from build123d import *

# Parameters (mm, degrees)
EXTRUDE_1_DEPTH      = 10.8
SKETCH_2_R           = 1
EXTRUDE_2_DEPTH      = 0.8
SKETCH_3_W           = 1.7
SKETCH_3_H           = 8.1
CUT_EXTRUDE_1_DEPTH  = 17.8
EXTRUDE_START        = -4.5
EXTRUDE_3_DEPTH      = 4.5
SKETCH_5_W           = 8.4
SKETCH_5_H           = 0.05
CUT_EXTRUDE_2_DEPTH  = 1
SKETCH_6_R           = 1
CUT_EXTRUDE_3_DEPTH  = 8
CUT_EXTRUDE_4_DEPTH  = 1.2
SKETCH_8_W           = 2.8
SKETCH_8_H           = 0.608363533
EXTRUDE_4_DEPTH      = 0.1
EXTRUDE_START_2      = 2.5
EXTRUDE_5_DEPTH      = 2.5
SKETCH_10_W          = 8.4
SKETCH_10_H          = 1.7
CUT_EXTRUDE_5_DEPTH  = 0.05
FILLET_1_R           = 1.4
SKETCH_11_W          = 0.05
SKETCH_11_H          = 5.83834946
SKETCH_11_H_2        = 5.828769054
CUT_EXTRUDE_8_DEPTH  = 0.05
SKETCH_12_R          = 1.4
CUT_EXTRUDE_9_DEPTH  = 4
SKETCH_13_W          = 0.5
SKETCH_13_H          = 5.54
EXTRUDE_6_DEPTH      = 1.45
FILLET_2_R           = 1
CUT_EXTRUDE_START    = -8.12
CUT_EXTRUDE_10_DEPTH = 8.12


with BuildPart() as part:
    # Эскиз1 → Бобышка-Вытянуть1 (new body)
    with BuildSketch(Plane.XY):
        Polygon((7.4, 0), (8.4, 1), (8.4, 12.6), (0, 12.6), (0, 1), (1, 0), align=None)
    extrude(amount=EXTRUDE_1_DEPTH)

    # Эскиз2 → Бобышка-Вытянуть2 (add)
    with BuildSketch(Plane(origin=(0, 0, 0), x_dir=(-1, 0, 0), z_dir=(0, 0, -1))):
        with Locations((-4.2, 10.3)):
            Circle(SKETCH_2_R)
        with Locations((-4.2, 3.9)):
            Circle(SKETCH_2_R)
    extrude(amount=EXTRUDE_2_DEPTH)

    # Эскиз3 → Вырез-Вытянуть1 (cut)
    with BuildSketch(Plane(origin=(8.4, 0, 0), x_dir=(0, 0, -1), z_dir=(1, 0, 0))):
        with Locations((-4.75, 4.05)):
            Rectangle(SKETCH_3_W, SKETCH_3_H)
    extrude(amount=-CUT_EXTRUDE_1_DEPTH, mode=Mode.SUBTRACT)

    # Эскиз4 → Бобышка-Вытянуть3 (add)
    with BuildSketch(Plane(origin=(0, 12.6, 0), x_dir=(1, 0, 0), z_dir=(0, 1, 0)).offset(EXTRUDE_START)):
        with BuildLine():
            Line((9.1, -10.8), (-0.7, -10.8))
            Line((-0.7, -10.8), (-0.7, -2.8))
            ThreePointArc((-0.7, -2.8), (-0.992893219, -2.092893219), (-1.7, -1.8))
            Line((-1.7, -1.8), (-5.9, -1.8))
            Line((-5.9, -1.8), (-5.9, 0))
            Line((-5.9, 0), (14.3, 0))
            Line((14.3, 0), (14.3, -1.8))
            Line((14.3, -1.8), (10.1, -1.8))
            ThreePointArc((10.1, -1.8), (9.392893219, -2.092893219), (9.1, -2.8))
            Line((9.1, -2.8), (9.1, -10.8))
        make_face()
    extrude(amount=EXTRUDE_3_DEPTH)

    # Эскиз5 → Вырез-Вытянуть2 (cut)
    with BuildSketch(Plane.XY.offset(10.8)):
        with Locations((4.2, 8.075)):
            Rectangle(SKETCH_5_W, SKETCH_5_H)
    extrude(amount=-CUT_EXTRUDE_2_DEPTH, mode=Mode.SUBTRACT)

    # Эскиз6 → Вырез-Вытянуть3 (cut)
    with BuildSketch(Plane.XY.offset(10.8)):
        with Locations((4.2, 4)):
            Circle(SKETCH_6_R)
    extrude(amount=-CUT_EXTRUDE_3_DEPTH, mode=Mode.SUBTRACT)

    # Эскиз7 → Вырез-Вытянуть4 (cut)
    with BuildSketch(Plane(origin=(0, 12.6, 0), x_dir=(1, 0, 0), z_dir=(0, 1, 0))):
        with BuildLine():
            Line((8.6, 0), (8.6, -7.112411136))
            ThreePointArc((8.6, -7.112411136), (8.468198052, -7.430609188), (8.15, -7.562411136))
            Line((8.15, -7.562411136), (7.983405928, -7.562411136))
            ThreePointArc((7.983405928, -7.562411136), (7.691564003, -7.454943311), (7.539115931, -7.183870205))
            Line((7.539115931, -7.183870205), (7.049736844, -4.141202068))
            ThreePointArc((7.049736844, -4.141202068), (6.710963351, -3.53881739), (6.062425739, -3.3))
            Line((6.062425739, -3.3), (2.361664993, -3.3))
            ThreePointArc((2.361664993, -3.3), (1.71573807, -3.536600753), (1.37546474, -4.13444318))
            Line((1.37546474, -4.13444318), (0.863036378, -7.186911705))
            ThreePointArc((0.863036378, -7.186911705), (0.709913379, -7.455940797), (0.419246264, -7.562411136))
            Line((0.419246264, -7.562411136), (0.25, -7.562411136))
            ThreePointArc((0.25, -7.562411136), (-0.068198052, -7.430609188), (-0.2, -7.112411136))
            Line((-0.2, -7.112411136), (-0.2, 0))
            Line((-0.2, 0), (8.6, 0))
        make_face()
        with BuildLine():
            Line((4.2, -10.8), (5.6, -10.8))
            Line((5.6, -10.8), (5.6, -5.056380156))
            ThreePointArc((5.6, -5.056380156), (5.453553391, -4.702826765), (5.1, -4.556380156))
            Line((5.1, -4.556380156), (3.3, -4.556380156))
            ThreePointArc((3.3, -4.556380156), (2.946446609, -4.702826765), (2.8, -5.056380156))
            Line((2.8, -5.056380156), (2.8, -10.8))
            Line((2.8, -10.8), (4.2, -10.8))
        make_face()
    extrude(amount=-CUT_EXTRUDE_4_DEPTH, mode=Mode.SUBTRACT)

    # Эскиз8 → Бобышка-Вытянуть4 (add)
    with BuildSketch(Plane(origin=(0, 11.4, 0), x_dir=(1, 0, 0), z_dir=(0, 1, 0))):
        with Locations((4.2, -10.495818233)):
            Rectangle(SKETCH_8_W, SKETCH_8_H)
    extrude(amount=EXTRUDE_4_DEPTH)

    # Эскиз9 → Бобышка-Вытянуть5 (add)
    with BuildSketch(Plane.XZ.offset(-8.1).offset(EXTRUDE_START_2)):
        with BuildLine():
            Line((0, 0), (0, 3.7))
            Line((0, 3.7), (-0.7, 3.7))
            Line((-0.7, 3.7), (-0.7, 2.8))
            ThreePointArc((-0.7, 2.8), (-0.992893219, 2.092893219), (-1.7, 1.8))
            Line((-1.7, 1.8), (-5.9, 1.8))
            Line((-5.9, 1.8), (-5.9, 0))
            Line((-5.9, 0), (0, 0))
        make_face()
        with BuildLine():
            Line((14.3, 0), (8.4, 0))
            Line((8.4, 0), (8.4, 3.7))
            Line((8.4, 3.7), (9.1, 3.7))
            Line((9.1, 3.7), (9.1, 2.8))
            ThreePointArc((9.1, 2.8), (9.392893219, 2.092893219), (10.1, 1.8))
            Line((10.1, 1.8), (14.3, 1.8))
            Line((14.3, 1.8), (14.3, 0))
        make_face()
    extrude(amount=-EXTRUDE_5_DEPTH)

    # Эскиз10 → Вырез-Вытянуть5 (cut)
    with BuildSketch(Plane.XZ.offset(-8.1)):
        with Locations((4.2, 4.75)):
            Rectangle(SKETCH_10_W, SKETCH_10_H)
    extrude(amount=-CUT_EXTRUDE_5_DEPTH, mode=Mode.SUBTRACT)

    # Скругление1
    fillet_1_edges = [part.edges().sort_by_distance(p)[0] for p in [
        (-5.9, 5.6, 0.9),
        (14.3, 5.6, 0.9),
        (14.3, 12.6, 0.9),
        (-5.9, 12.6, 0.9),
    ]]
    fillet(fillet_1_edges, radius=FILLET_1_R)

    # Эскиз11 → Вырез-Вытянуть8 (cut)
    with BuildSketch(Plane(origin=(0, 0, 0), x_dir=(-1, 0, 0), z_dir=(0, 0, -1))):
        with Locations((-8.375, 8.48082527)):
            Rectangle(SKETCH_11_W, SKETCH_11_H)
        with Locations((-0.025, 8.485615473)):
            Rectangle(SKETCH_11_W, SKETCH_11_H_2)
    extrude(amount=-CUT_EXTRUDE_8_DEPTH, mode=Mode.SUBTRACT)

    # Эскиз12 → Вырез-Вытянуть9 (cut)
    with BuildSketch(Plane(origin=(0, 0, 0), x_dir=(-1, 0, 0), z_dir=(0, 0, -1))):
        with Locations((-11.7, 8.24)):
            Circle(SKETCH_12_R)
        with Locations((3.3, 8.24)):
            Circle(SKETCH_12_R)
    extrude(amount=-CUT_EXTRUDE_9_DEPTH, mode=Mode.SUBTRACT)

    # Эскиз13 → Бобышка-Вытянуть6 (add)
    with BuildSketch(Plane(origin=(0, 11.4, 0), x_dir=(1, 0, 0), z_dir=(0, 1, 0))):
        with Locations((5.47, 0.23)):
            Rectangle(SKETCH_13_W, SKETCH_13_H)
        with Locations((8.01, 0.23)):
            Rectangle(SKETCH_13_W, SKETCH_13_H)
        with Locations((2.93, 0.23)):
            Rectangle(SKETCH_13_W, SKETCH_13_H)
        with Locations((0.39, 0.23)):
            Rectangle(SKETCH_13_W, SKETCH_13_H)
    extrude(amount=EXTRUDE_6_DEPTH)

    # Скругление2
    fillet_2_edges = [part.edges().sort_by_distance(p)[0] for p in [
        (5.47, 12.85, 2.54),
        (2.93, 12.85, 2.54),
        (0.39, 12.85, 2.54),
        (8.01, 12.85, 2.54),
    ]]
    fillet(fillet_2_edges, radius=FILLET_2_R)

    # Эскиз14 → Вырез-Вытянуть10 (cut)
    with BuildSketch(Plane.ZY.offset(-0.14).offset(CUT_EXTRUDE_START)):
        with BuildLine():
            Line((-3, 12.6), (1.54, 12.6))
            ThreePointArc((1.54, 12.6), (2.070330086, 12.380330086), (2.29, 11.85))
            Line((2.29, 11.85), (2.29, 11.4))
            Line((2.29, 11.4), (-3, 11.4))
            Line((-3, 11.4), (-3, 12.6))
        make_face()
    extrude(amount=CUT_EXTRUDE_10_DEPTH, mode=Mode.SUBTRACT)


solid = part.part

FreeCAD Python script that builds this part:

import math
import FreeCAD as App
import Part
import Sketcher

V = App.Vector
Q = App.Units.Quantity


def edges_at(feature, points):
    """Names of the edges that pass closest to the given points."""
    edges = feature.Shape.Edges
    near = lambda p: min(range(len(edges)), key=lambda i: edges[i].distToShape(Part.Vertex(*p))[0])
    return sorted({f"Edge{near(p) + 1}" for p in points})

doc = App.newDocument("Part")
params = doc.addObject("Spreadsheet::Sheet", "Params")
for row, (alias, value) in enumerate([
    ("sketch1_width", "8.4 mm"),
    ("sketch1_width2", "6.4 mm"),
    ("sketch1_height", "11.6 mm"),
    ("pad1_length", "10.8 mm"),
    ("sketch2_diameter", "2 mm"),
    ("pad2_length", "0.8 mm"),
    ("sketch3_width", "8.1 mm"),
    ("sketch3_height", "1.7 mm"),
    ("pocket1_length", "17.8 mm"),
    ("sketch4_radius", "1 mm"),
    ("sketch4_height", "8 mm"),
    ("sketch4_width", "9.8 mm"),
    ("sketch4_width2", "4.2 mm"),
    ("sketch4_height2", "1.8 mm"),
    ("pad3_length", "4.5 mm"),
    ("sketch5_width", "8.4 mm"),
    ("sketch5_height", "0.05 mm"),
    ("pocket2_length", "1 mm"),
    ("sketch6_diameter", "2 mm"),
    ("pocket3_length", "8 mm"),
    ("sketch7_radius", "1 mm"),
    ("sketch7_radius2", "0.5 mm"),
    ("sketch7_radius3", "0.45 mm"),
    ("sketch7_width", "8.8 mm"),
    ("sketch7_width2", "1.8 mm"),
    ("pocket4_length", "1.2 mm"),
    ("sketch8_width", "2.8 mm"),
    ("pad4_length", "0.1 mm"),
    ("sketch9_radius", "1 mm"),
    ("sketch9_width", "0.7 mm"),
    ("sketch9_width2", "4.2 mm"),
    ("sketch9_height", "3.7 mm"),
    ("sketch9_height2", "0.9 mm"),
    ("pad5_length", "2.5 mm"),
    ("sketch10_width", "8.4 mm"),
    ("sketch10_height", "1.7 mm"),
    ("pocket5_length", "0.05 mm"),
    ("fillet_radius", "1.4 mm"),
    ("sketch11_width", "0.05 mm"),
    ("pocket6_length", "0.05 mm"),
    ("sketch12_diameter", "2.8 mm"),
    ("pocket7_length", "4 mm"),
    ("sketch13_width", "0.5 mm"),
    ("sketch13_height", "5.54 mm"),
    ("pad6_length", "1.45 mm"),
    ("fillet2_radius", "1 mm"),
    ("sketch14_radius", "0.75 mm"),
    ("sketch14_width", "1.2 mm"),
    ("sketch14_height", "4.54 mm"),
    ("pocket8_length", "8.12 mm"),
], start=1):
    params.set(f"A{row}", alias)
    params.set(f"B{row}", "=" + value)
    params.setAlias(f"B{row}", alias)

body = doc.addObject("PartDesign::Body", "Body")

# Sketch on XY plane
sketch1 = body.newObject("Sketcher::SketchObject", "Sketch")
sketch1.AttachmentSupport = (doc.getObject("XY_Plane"), [""])
sketch1.MapMode = "FlatFace"
sketch1.addGeometry([
    Part.LineSegment(V(7.4, 0, 0), V(8.4, 1, 0)),  # 0
    Part.LineSegment(V(8.4, 1, 0), V(8.4, 12.6, 0)),  # 1
    Part.LineSegment(V(8.4, 12.6, 0), V(0, 12.6, 0)),  # 2
    Part.LineSegment(V(0, 12.6, 0), V(0, 1, 0)),  # 3
    Part.LineSegment(V(0, 1, 0), V(1, 0, 0)),  # 4
    Part.LineSegment(V(1, 0, 0), V(7.4, 0, 0)),  # 5
], False)
sketch1.addConstraint([
    Sketcher.Constraint("Coincident", 0, 2, 1, 1),
    Sketcher.Constraint("Coincident", 1, 2, 2, 1),
    Sketcher.Constraint("Coincident", 2, 2, 3, 1),
    Sketcher.Constraint("Coincident", 3, 2, 4, 1),
    Sketcher.Constraint("Coincident", 4, 2, 5, 1),
    Sketcher.Constraint("Coincident", 5, 2, 0, 1),
    Sketcher.Constraint("Vertical", 1),
    Sketcher.Constraint("Horizontal", 2),
    Sketcher.Constraint("Vertical", 3),
    Sketcher.Constraint("Horizontal", 5),
    Sketcher.Constraint("PointOnObject", 2, 2, -2),
    Sketcher.Constraint("PointOnObject", 4, 2, -1),
    Sketcher.Constraint("Perpendicular", 0, 4),
    Sketcher.Constraint("Horizontal", 0, 2, 3, 2),
    Sketcher.Constraint("Equal", 0, 4),
    Sketcher.Constraint("DistanceX", 2, 2, 2, 1, Q("8.4 mm")),
    Sketcher.Constraint("DistanceX", 5, 1, 5, 2, Q("6.4 mm")),
    Sketcher.Constraint("DistanceY", 1, 1, 1, 2, Q("11.6 mm")),
])
sketch1.setExpression("Constraints[15]", "Params.sketch1_width")
sketch1.setExpression("Constraints[16]", "Params.sketch1_width2")
sketch1.setExpression("Constraints[17]", "Params.sketch1_height")
pad1 = body.newObject("PartDesign::Pad", "Pad")
pad1.Profile = sketch1
pad1.setExpression("Length", "Params.pad1_length")

# Sketch on XY plane
sketch2 = body.newObject("Sketcher::SketchObject", "Sketch001")
sketch2.AttachmentSupport = (doc.getObject("XY_Plane"), [""])
sketch2.MapMode = "FlatFace"
sketch2.addGeometry([
    Part.Circle(V(4.2, 10.3, 0), V(0, 0, 1), 1),
    Part.Circle(V(4.2, 3.9, 0), V(0, 0, 1), 1),
], False)
sketch2.addConstraint([
    Sketcher.Constraint("Equal", 0, 1),
    Sketcher.Constraint("Vertical", 0, 3, 1, 3),
    Sketcher.Constraint("Diameter", 0, Q("2 mm")),
    Sketcher.Constraint("DistanceX", -1, 1, 0, 3, Q("4.2 mm")),
    Sketcher.Constraint("DistanceY", -1, 1, 0, 3, Q("10.3 mm")),
    Sketcher.Constraint("DistanceY", -1, 1, 1, 3, Q("3.9 mm")),
])
sketch2.setExpression("Constraints[2]", "Params.sketch2_diameter")
pad2 = body.newObject("PartDesign::Pad", "Pad001")
pad2.Profile = sketch2
pad2.setExpression("Length", "Params.pad2_length")
pad2.Reversed = True

# Sketch on YZ plane
sketch3 = body.newObject("Sketcher::SketchObject", "Sketch002")
sketch3.AttachmentSupport = (doc.getObject("YZ_Plane"), [""])
sketch3.MapMode = "FlatFace"
sketch3.AttachmentOffset = App.Placement(V(0, 0, 8.4), App.Rotation())
sketch3.addGeometry([
    Part.LineSegment(V(8.1, 5.6, 0), V(0, 5.6, 0)),
    Part.LineSegment(V(0, 5.6, 0), V(0, 3.9, 0)),
    Part.LineSegment(V(0, 3.9, 0), V(8.1, 3.9, 0)),
    Part.LineSegment(V(8.1, 3.9, 0), V(8.1, 5.6, 0)),
], False)
sketch3.addConstraint([
    Sketcher.Constraint("Coincident", 0, 2, 1, 1),
    Sketcher.Constraint("Coincident", 1, 2, 2, 1),
    Sketcher.Constraint("Coincident", 2, 2, 3, 1),
    Sketcher.Constraint("Coincident", 3, 2, 0, 1),
    Sketcher.Constraint("Horizontal", 0),
    Sketcher.Constraint("Vertical", 1),
    Sketcher.Constraint("Horizontal", 2),
    Sketcher.Constraint("Vertical", 3),
    Sketcher.Constraint("PointOnObject", 0, 2, -2),
    Sketcher.Constraint("DistanceX", 0, 2, 0, 1, Q("8.1 mm")),
    Sketcher.Constraint("DistanceY", 1, 2, 1, 1, Q("1.7 mm")),
    Sketcher.Constraint("DistanceY", -1, 1, 0, 2, Q("5.6 mm")),
])
sketch3.setExpression("Constraints[9]", "Params.sketch3_width")
sketch3.setExpression("Constraints[10]", "Params.sketch3_height")
pocket1 = body.newObject("PartDesign::Pocket", "Pocket")
pocket1.Profile = sketch3
pocket1.setExpression("Length", "Params.pocket1_length")

# Sketch on XZ plane
sketch4 = body.newObject("Sketcher::SketchObject", "Sketch003")
sketch4.AttachmentSupport = (doc.getObject("XZ_Plane"), [""])
sketch4.MapMode = "FlatFace"
sketch4.AttachmentOffset = App.Placement(V(0, 0, -8.1), App.Rotation())
sketch4.addGeometry([
    Part.LineSegment(V(-0.7, 10.8, 0), V(9.1, 10.8, 0)),  # 0
    Part.LineSegment(V(9.1, 10.8, 0), V(9.1, 2.8, 0)),  # 1
    Part.ArcOfCircle(Part.Circle(V(10.1, 2.8, 0), V(0, 0, 1), 1), math.radians(-180), math.radians(-90)),  # 2
    Part.LineSegment(V(10.1, 1.8, 0), V(14.3, 1.8, 0)),  # 3
    Part.LineSegment(V(14.3, 1.8, 0), V(14.3, 0, 0)),  # 4
    Part.LineSegment(V(14.3, 0, 0), V(-5.9, 0, 0)),  # 5
    Part.LineSegment(V(-5.9, 0, 0), V(-5.9, 1.8, 0)),  # 6
    Part.LineSegment(V(-5.9, 1.8, 0), V(-1.7, 1.8, 0)),  # 7
    Part.ArcOfCircle(Part.Circle(V(-1.7, 2.8, 0), V(0, 0, 1), 1), math.radians(-90), math.radians(0)),  # 8
    Part.LineSegment(V(-0.7, 2.8, 0), V(-0.7, 10.8, 0)),  # 9
], False)
sketch4.addConstraint([
    Sketcher.Constraint("Coincident", 0, 2, 1, 1),
    Sketcher.Constraint("Tangent", 1, 2, 2, 1),
    Sketcher.Constraint("Tangent", 2, 2, 3, 1),
    Sketcher.Constraint("Coincident", 3, 2, 4, 1),
    Sketcher.Constraint("Coincident", 4, 2, 5, 1),
    Sketcher.Constraint("Coincident", 5, 2, 6, 1),
    Sketcher.Constraint("Coincident", 6, 2, 7, 1),
    Sketcher.Constraint("Tangent", 7, 2, 8, 1),
    Sketcher.Constraint("Tangent", 8, 2, 9, 1),
    Sketcher.Constraint("Coincident", 9, 2, 0, 1),
    Sketcher.Constraint("Horizontal", 0),
    Sketcher.Constraint("Vertical", 1),
    Sketcher.Constraint("Horizontal", 3),
    Sketcher.Constraint("Vertical", 4),
    Sketcher.Constraint("Horizontal", 5),
    Sketcher.Constraint("Vertical", 6),
    Sketcher.Constraint("Horizontal", 7),
    Sketcher.Constraint("Vertical", 9),
    Sketcher.Constraint("Equal", 2, 8),
    Sketcher.Constraint("PointOnObject", 4, 2, -1),
    Sketcher.Constraint("Horizontal", 2, 3, 8, 3),
    Sketcher.Constraint("Equal", 3, 7),
    Sketcher.Constraint("Radius", 2, Q("1 mm")),
    Sketcher.Constraint("DistanceY", 1, 2, 1, 1, Q("8 mm")),
    Sketcher.Constraint("DistanceX", 0, 1, 0, 2, Q("9.8 mm")),
    Sketcher.Constraint("DistanceX", 3, 1, 3, 2, Q("4.2 mm")),
    Sketcher.Constraint("DistanceY", 4, 2, 4, 1, Q("1.8 mm")),
    Sketcher.Constraint("DistanceX", -1, 1, 2, 3, Q("10.1 mm")),
])
sketch4.setExpression("Constraints[22]", "Params.sketch4_radius")
sketch4.setExpression("Constraints[23]", "Params.sketch4_height")
sketch4.setExpression("Constraints[24]", "Params.sketch4_width")
sketch4.setExpression("Constraints[25]", "Params.sketch4_width2")
sketch4.setExpression("Constraints[26]", "Params.sketch4_height2")
pad3 = body.newObject("PartDesign::Pad", "Pad002")
pad3.Profile = sketch4
pad3.setExpression("Length", "Params.pad3_length")
pad3.Reversed = True

# Sketch on XY plane
sketch5 = body.newObject("Sketcher::SketchObject", "Sketch004")
sketch5.AttachmentSupport = (doc.getObject("XY_Plane"), [""])
sketch5.MapMode = "FlatFace"
sketch5.AttachmentOffset = App.Placement(V(0, 0, 10.8), App.Rotation())
sketch5.addGeometry([
    Part.LineSegment(V(0, 8.1, 0), V(0, 8.05, 0)),
    Part.LineSegment(V(0, 8.05, 0), V(8.4, 8.05, 0)),
    Part.LineSegment(V(8.4, 8.05, 0), V(8.4, 8.1, 0)),
    Part.LineSegment(V(8.4, 8.1, 0), V(0, 8.1, 0)),
], False)
sketch5.addConstraint([
    Sketcher.Constraint("Coincident", 0, 2, 1, 1),
    Sketcher.Constraint("Coincident", 1, 2, 2, 1),
    Sketcher.Constraint("Coincident", 2, 2, 3, 1),
    Sketcher.Constraint("Coincident", 3, 2, 0, 1),
    Sketcher.Constraint("Vertical", 0),
    Sketcher.Constraint("Horizontal", 1),
    Sketcher.Constraint("Vertical", 2),
    Sketcher.Constraint("Horizontal", 3),
    Sketcher.Constraint("PointOnObject", 0, 2, -2),
    Sketcher.Constraint("DistanceX", 1, 1, 1, 2, Q("8.4 mm")),
    Sketcher.Constraint("DistanceY", 0, 2, 0, 1, Q("0.05 mm")),
    Sketcher.Constraint("DistanceY", -1, 1, 2, 2, Q("8.1 mm")),
])
sketch5.setExpression("Constraints[9]", "Params.sketch5_width")
sketch5.setExpression("Constraints[10]", "Params.sketch5_height")
pocket2 = body.newObject("PartDesign::Pocket", "Pocket001")
pocket2.Profile = sketch5
pocket2.setExpression("Length", "Params.pocket2_length")

# Sketch on XY plane
sketch6 = body.newObject("Sketcher::SketchObject", "Sketch005")
sketch6.AttachmentSupport = (doc.getObject("XY_Plane"), [""])
sketch6.MapMode = "FlatFace"
sketch6.AttachmentOffset = App.Placement(V(0, 0, 10.8), App.Rotation())
sketch6.addGeometry(Part.Circle(V(4.2, 4, 0), V(0, 0, 1), 1), False)
sketch6.addConstraint([
    Sketcher.Constraint("Diameter", 0, Q("2 mm")),
    Sketcher.Constraint("DistanceY", -1, 1, 0, 3, Q("4 mm")),
    Sketcher.Constraint("DistanceX", -1, 1, 0, 3, Q("4.2 mm")),
])
sketch6.setExpression("Constraints[0]", "Params.sketch6_diameter")
pocket3 = body.newObject("PartDesign::Pocket", "Pocket002")
pocket3.Profile = sketch6
pocket3.setExpression("Length", "Params.pocket3_length")

# Sketch on XZ plane
sketch7 = body.newObject("Sketcher::SketchObject", "Sketch006")
sketch7.AttachmentSupport = (doc.getObject("XZ_Plane"), [""])
sketch7.MapMode = "FlatFace"
sketch7.AttachmentOffset = App.Placement(V(0, 0, -12.6), App.Rotation())
sketch7.addGeometry([
    Part.LineSegment(V(8.6, 7.11, 0), V(8.6, 0, 0)),  # 0
    Part.LineSegment(V(8.6, 0, 0), V(-0.2, 0, 0)),  # 1
    Part.LineSegment(V(-0.2, 0, 0), V(-0.2, 7.11, 0)),  # 2
    Part.ArcOfCircle(Part.Circle(V(0.25, 7.11, 0), V(0, 0, 1), 0.45), math.radians(90), math.radians(180)),  # 3
    Part.LineSegment(V(0.25, 7.56, 0), V(0.42, 7.56, 0)),  # 4
    Part.ArcOfCircle(Part.Circle(V(0.42, 7.11, 0), V(0, 0, 1), 0.45), math.radians(10), math.radians(90)),  # 5
    Part.LineSegment(V(0.86, 7.19, 0), V(1.38, 4.13, 0)),  # 6
    Part.ArcOfCircle(Part.Circle(V(2.36, 4.3, 0), V(0, 0, 1), 1), math.radians(-170), math.radians(-90)),  # 7
    Part.LineSegment(V(2.36, 3.3, 0), V(6.06, 3.3, 0)),  # 8
    Part.ArcOfCircle(Part.Circle(V(6.06, 4.3, 0), V(0, 0, 1), 1), math.radians(-90), math.radians(-9)),  # 9
    Part.LineSegment(V(7.05, 4.14, 0), V(7.54, 7.18, 0)),  # 10
    Part.ArcOfCircle(Part.Circle(V(7.98, 7.11, 0), V(0, 0, 1), 0.45), math.radians(90), math.radians(171)),  # 11
    Part.LineSegment(V(7.98, 7.56, 0), V(8.15, 7.56, 0)),  # 12
    Part.ArcOfCircle(Part.Circle(V(8.15, 7.11, 0), V(0, 0, 1), 0.45), math.radians(0), math.radians(90)),  # 13
    Part.LineSegment(V(5.6, 10.8, 0), V(5.6, 5.06, 0)),  # 14
    Part.ArcOfCircle(Part.Circle(V(5.1, 5.06, 0), V(0, 0, 1), 0.5), math.radians(-90), math.radians(0)),  # 15
    Part.LineSegment(V(5.1, 4.56, 0), V(3.3, 4.56, 0)),  # 16
    Part.ArcOfCircle(Part.Circle(V(3.3, 5.06, 0), V(0, 0, 1), 0.5), math.radians(180), math.radians(270)),  # 17
    Part.LineSegment(V(2.8, 5.06, 0), V(2.8, 10.8, 0)),  # 18
    Part.LineSegment(V(2.8, 10.8, 0), V(5.6, 10.8, 0)),  # 19
], False)
sketch7.addConstraint([
    Sketcher.Constraint("Coincident", 0, 2, 1, 1),
    Sketcher.Constraint("Coincident", 1, 2, 2, 1),
    Sketcher.Constraint("Tangent", 2, 2, 3, 2),
    Sketcher.Constraint("Tangent", 3, 1, 4, 1),
    Sketcher.Constraint("Tangent", 4, 2, 5, 2),
    Sketcher.Constraint("Tangent", 5, 1, 6, 1),
    Sketcher.Constraint("Tangent", 6, 2, 7, 1),
    Sketcher.Constraint("Tangent", 7, 2, 8, 1),
    Sketcher.Constraint("Tangent", 8, 2, 9, 1),
    Sketcher.Constraint("Tangent", 9, 2, 10, 1),
    Sketcher.Constraint("Tangent", 10, 2, 11, 2),
    Sketcher.Constraint("Tangent", 11, 1, 12, 1),
    Sketcher.Constraint("Tangent", 12, 2, 13, 2),
    Sketcher.Constraint("Tangent", 13, 1, 0, 1),
    Sketcher.Constraint("Tangent", 14, 2, 15, 2),
    Sketcher.Constraint("Tangent", 15, 1, 16, 1),
    Sketcher.Constraint("Tangent", 16, 2, 17, 2),
    Sketcher.Constraint("Tangent", 17, 1, 18, 1),
    Sketcher.Constraint("Coincident", 18, 2, 19, 1),
    Sketcher.Constraint("Coincident", 19, 2, 14, 1),
    Sketcher.Constraint("Vertical", 0),
    Sketcher.Constraint("Horizontal", 1),
    Sketcher.Constraint("Vertical", 2),
    Sketcher.Constraint("Horizontal", 4),
    Sketcher.Constraint("Horizontal", 8),
    Sketcher.Constraint("Horizontal", 12),
    Sketcher.Constraint("Vertical", 14),
    Sketcher.Constraint("Horizontal", 16),
    Sketcher.Constraint("Vertical", 18),
    Sketcher.Constraint("Horizontal", 19),
    Sketcher.Constraint("Equal", 3, 5),
    Sketcher.Constraint("Equal", 7, 9),
    Sketcher.Constraint("Equal", 5, 11),
    Sketcher.Constraint("Equal", 11, 13),
    Sketcher.Constraint("Equal", 15, 17),
    Sketcher.Constraint("PointOnObject", 0, 2, -1),
    Sketcher.Constraint("Horizontal", 5, 3, 11, 3),
    Sketcher.Constraint("Radius", 7, Q("1 mm")),
    Sketcher.Constraint("Radius", 15, Q("0.5 mm")),
    Sketcher.Constraint("Radius", 3, Q("0.45 mm")),
    Sketcher.Constraint("DistanceX", 1, 2, 1, 1, Q("8.8 mm")),
    Sketcher.Constraint("DistanceX", 16, 2, 16, 1, Q("1.8 mm")),
    Sketcher.Constraint("DistanceY", -1, 1, 7, 3, Q("4.3 mm")),
    Sketcher.Constraint("DistanceX", -1, 1, 15, 3, Q("5.1 mm")),
    Sketcher.Constraint("DistanceX", -1, 1, 0, 2, Q("8.6 mm")),
    Sketcher.Constraint("DistanceY", -1, 1, 18, 2, Q("10.8 mm")),
    Sketcher.Constraint("DistanceX", 8, 1, 8, 2, Q("3.700761 mm")),
    Sketcher.Constraint("DistanceY", 0, 2, 0, 1, Q("7.112411 mm")),
    Sketcher.Constraint("DistanceY", 14, 2, 14, 1, Q("5.74362 mm")),
    Sketcher.Constraint("DistanceY", 5, 3, 5, 1, Q("0.074501 mm")),
    Sketcher.Constraint("DistanceX", 4, 1, 4, 2, Q("0.169246 mm")),
    Sketcher.Constraint("DistanceX", 12, 1, 12, 2, Q("0.166594 mm")),
])
sketch7.setExpression("Constraints[37]", "Params.sketch7_radius")
sketch7.setExpression("Constraints[38]", "Params.sketch7_radius2")
sketch7.setExpression("Constraints[39]", "Params.sketch7_radius3")
sketch7.setExpression("Constraints[40]", "Params.sketch7_width")
sketch7.setExpression("Constraints[41]", "Params.sketch7_width2")
pocket4 = body.newObject("PartDesign::Pocket", "Pocket003")
pocket4.Profile = sketch7
pocket4.setExpression("Length", "Params.pocket4_length")
pocket4.Reversed = True

# Sketch on XZ plane
sketch8 = body.newObject("Sketcher::SketchObject", "Sketch007")
sketch8.AttachmentSupport = (doc.getObject("XZ_Plane"), [""])
sketch8.MapMode = "FlatFace"
sketch8.AttachmentOffset = App.Placement(V(0, 0, -11.4), App.Rotation())
sketch8.addGeometry([
    Part.LineSegment(V(2.8, 10.2, 0), V(2.8, 10.8, 0)),
    Part.LineSegment(V(2.8, 10.8, 0), V(5.6, 10.8, 0)),
    Part.LineSegment(V(5.6, 10.8, 0), V(5.6, 10.2, 0)),
    Part.LineSegment(V(5.6, 10.2, 0), V(2.8, 10.2, 0)),
], False)
sketch8.addConstraint([
    Sketcher.Constraint("Coincident", 0, 2, 1, 1),
    Sketcher.Constraint("Coincident", 1, 2, 2, 1),
    Sketcher.Constraint("Coincident", 2, 2, 3, 1),
    Sketcher.Constraint("Coincident", 3, 2, 0, 1),
    Sketcher.Constraint("Vertical", 0),
    Sketcher.Constraint("Horizontal", 1),
    Sketcher.Constraint("Vertical", 2),
    Sketcher.Constraint("Horizontal", 3),
    Sketcher.Constraint("DistanceX", 1, 1, 1, 2, Q("2.8 mm")),
    Sketcher.Constraint("DistanceX", -1, 1, 0, 2, Q("2.8 mm")),
    Sketcher.Constraint("DistanceY", -1, 1, 0, 2, Q("10.8 mm")),
    Sketcher.Constraint("DistanceY", 0, 1, 0, 2, Q("0.608364 mm")),
])
sketch8.setExpression("Constraints[8]", "Params.sketch8_width")
pad4 = body.newObject("PartDesign::Pad", "Pad003")
pad4.Profile = sketch8
pad4.setExpression("Length", "Params.pad4_length")
pad4.Reversed = True

# Sketch on XZ plane
sketch9 = body.newObject("Sketcher::SketchObject", "Sketch008")
sketch9.AttachmentSupport = (doc.getObject("XZ_Plane"), [""])
sketch9.MapMode = "FlatFace"
sketch9.AttachmentOffset = App.Placement(V(0, 0, -5.6), App.Rotation())
sketch9.addGeometry([
    Part.LineSegment(V(0, 0, 0), V(0, 3.7, 0)),  # 0
    Part.LineSegment(V(0, 3.7, 0), V(-0.7, 3.7, 0)),  # 1
    Part.LineSegment(V(-0.7, 3.7, 0), V(-0.7, 2.8, 0)),  # 2
    Part.ArcOfCircle(Part.Circle(V(-1.7, 2.8, 0), V(0, 0, 1), 1), math.radians(-90), math.radians(0)),  # 3
    Part.LineSegment(V(-1.7, 1.8, 0), V(-5.9, 1.8, 0)),  # 4
    Part.LineSegment(V(-5.9, 1.8, 0), V(-5.9, 0, 0)),  # 5
    Part.LineSegment(V(-5.9, 0, 0), V(0, 0, 0)),  # 6
    Part.LineSegment(V(8.4, 0, 0), V(14.3, 0, 0)),  # 7
    Part.LineSegment(V(14.3, 0, 0), V(14.3, 1.8, 0)),  # 8
    Part.LineSegment(V(14.3, 1.8, 0), V(10.1, 1.8, 0)),  # 9
    Part.ArcOfCircle(Part.Circle(V(10.1, 2.8, 0), V(0, 0, 1), 1), math.radians(-180), math.radians(-90)),  # 10
    Part.LineSegment(V(9.1, 2.8, 0), V(9.1, 3.7, 0)),  # 11
    Part.LineSegment(V(9.1, 3.7, 0), V(8.4, 3.7, 0)),  # 12
    Part.LineSegment(V(8.4, 3.7, 0), V(8.4, 0, 0)),  # 13
], False)
sketch9.addConstraint([
    Sketcher.Constraint("Coincident", 0, 2, 1, 1),
    Sketcher.Constraint("Coincident", 1, 2, 2, 1),
    Sketcher.Constraint("Tangent", 2, 2, 3, 2),
    Sketcher.Constraint("Tangent", 3, 1, 4, 1),
    Sketcher.Constraint("Coincident", 4, 2, 5, 1),
    Sketcher.Constraint("Coincident", 5, 2, 6, 1),
    Sketcher.Constraint("Coincident", 6, 2, 0, 1),
    Sketcher.Constraint("Coincident", 7, 2, 8, 1),
    Sketcher.Constraint("Coincident", 8, 2, 9, 1),
    Sketcher.Constraint("Tangent", 9, 2, 10, 2),
    Sketcher.Constraint("Tangent", 10, 1, 11, 1),
    Sketcher.Constraint("Coincident", 11, 2, 12, 1),
    Sketcher.Constraint("Coincident", 12, 2, 13, 1),
    Sketcher.Constraint("Coincident", 13, 2, 7, 1),
    Sketcher.Constraint("Vertical", 0),
    Sketcher.Constraint("Horizontal", 1),
    Sketcher.Constraint("Vertical", 2),
    Sketcher.Constraint("Horizontal", 4),
    Sketcher.Constraint("Vertical", 5),
    Sketcher.Constraint("Horizontal", 6),
    Sketcher.Constraint("Horizontal", 7),
    Sketcher.Constraint("Vertical", 8),
    Sketcher.Constraint("Horizontal", 9),
    Sketcher.Constraint("Vertical", 11),
    Sketcher.Constraint("Horizontal", 12),
    Sketcher.Constraint("Vertical", 13),
    Sketcher.Constraint("Coincident", 6, 2, -1, 1),
    Sketcher.Constraint("Equal", 3, 10),
    Sketcher.Constraint("PointOnObject", 7, 2, -1),
    Sketcher.Constraint("Horizontal", 3, 3, 10, 3),
    Sketcher.Constraint("Horizontal", 1, 2, 11, 2),
    Sketcher.Constraint("Equal", 6, 7),
    Sketcher.Constraint("Equal", 4, 9),
    Sketcher.Constraint("Radius", 3, Q("1 mm")),
    Sketcher.Constraint("DistanceX", 1, 2, 1, 1, Q("0.7 mm")),
    Sketcher.Constraint("DistanceX", 4, 2, 4, 1, Q("4.2 mm")),
    Sketcher.Constraint("DistanceY", 0, 1, 0, 2, Q("3.7 mm")),
    Sketcher.Constraint("DistanceY", 2, 2, 2, 1, Q("0.9 mm")),
    Sketcher.Constraint("DistanceX", 2, 2, 7, 2, Q("15 mm")),
])
sketch9.setExpression("Constraints[33]", "Params.sketch9_radius")
sketch9.setExpression("Constraints[34]", "Params.sketch9_width")
sketch9.setExpression("Constraints[35]", "Params.sketch9_width2")
sketch9.setExpression("Constraints[36]", "Params.sketch9_height")
sketch9.setExpression("Constraints[37]", "Params.sketch9_height2")
pad5 = body.newObject("PartDesign::Pad", "Pad004")
pad5.Profile = sketch9
pad5.setExpression("Length", "Params.pad5_length")
pad5.Reversed = True

# Sketch on XZ plane
sketch10 = body.newObject("Sketcher::SketchObject", "Sketch009")
sketch10.AttachmentSupport = (doc.getObject("XZ_Plane"), [""])
sketch10.MapMode = "FlatFace"
sketch10.AttachmentOffset = App.Placement(V(0, 0, -8.1), App.Rotation())
sketch10.addGeometry([
    Part.LineSegment(V(0, 5.6, 0), V(0, 3.9, 0)),
    Part.LineSegment(V(0, 3.9, 0), V(8.4, 3.9, 0)),
    Part.LineSegment(V(8.4, 3.9, 0), V(8.4, 5.6, 0)),
    Part.LineSegment(V(8.4, 5.6, 0), V(0, 5.6, 0)),
], False)
sketch10.addConstraint([
    Sketcher.Constraint("Coincident", 0, 2, 1, 1),
    Sketcher.Constraint("Coincident", 1, 2, 2, 1),
    Sketcher.Constraint("Coincident", 2, 2, 3, 1),
    Sketcher.Constraint("Coincident", 3, 2, 0, 1),
    Sketcher.Constraint("Vertical", 0),
    Sketcher.Constraint("Horizontal", 1),
    Sketcher.Constraint("Vertical", 2),
    Sketcher.Constraint("Horizontal", 3),
    Sketcher.Constraint("PointOnObject", 0, 2, -2),
    Sketcher.Constraint("DistanceX", 1, 1, 1, 2, Q("8.4 mm")),
    Sketcher.Constraint("DistanceY", 0, 2, 0, 1, Q("1.7 mm")),
    Sketcher.Constraint("DistanceY", -1, 1, 0, 2, Q("3.9 mm")),
])
sketch10.setExpression("Constraints[9]", "Params.sketch10_width")
sketch10.setExpression("Constraints[10]", "Params.sketch10_height")
pocket5 = body.newObject("PartDesign::Pocket", "Pocket004")
pocket5.Profile = sketch10
pocket5.setExpression("Length", "Params.pocket5_length")
doc.recompute()

fillet = body.newObject("PartDesign::Fillet", "Fillet")
fillet.Base = (pocket5, edges_at(pocket5, [
    (-5.9, 5.6, 0.9),
    (14.3, 5.6, 0.9),
    (14.3, 12.6, 0.9),
    (-5.9, 12.6, 0.9),
]))
fillet.setExpression("Radius", "Params.fillet_radius")

# Sketch on XY plane
sketch11 = body.newObject("Sketcher::SketchObject", "Sketch010")
sketch11.AttachmentSupport = (doc.getObject("XY_Plane"), [""])
sketch11.MapMode = "FlatFace"
sketch11.addGeometry([
    Part.LineSegment(V(8.4, 11.4, 0), V(8.4, 5.56, 0)),  # 0
    Part.LineSegment(V(8.4, 5.56, 0), V(8.35, 5.56, 0)),  # 1
    Part.LineSegment(V(8.35, 5.56, 0), V(8.35, 11.4, 0)),  # 2
    Part.LineSegment(V(8.35, 11.4, 0), V(8.4, 11.4, 0)),  # 3
    Part.LineSegment(V(0.05, 11.4, 0), V(0.05, 5.57, 0)),  # 4
    Part.LineSegment(V(0.05, 5.57, 0), V(0, 5.57, 0)),  # 5
    Part.LineSegment(V(0, 5.57, 0), V(0, 11.4, 0)),  # 6
    Part.LineSegment(V(0, 11.4, 0), V(0.05, 11.4, 0)),  # 7
], False)
sketch11.addConstraint([
    Sketcher.Constraint("Coincident", 0, 2, 1, 1),
    Sketcher.Constraint("Coincident", 1, 2, 2, 1),
    Sketcher.Constraint("Coincident", 2, 2, 3, 1),
    Sketcher.Constraint("Coincident", 3, 2, 0, 1),
    Sketcher.Constraint("Coincident", 4, 2, 5, 1),
    Sketcher.Constraint("Coincident", 5, 2, 6, 1),
    Sketcher.Constraint("Coincident", 6, 2, 7, 1),
    Sketcher.Constraint("Coincident", 7, 2, 4, 1),
    Sketcher.Constraint("Vertical", 0),
    Sketcher.Constraint("Horizontal", 1),
    Sketcher.Constraint("Vertical", 2),
    Sketcher.Constraint("Horizontal", 3),
    Sketcher.Constraint("Vertical", 4),
    Sketcher.Constraint("Horizontal", 5),
    Sketcher.Constraint("Vertical", 6),
    Sketcher.Constraint("Horizontal", 7),
    Sketcher.Constraint("PointOnObject", 5, 2, -2),
    Sketcher.Constraint("Horizontal", 3, 2, 6, 2),
    Sketcher.Constraint("Equal", 3, 5),
    Sketcher.Constraint("DistanceX", 1, 2, 1, 1, Q("0.05 mm")),
    Sketcher.Constraint("DistanceX", -1, 1, 0, 2, Q("8.4 mm")),
    Sketcher.Constraint("DistanceY", -1, 1, 2, 2, Q("11.4 mm")),
    Sketcher.Constraint("DistanceY", 0, 2, 0, 1, Q("5.838349 mm")),
    Sketcher.Constraint("DistanceY", 4, 2, 4, 1, Q("5.828769 mm")),
])
sketch11.setExpression("Constraints[19]", "Params.sketch11_width")
pocket6 = body.newObject("PartDesign::Pocket", "Pocket005")
pocket6.Profile = sketch11
pocket6.setExpression("Length", "Params.pocket6_length")
pocket6.Reversed = True

# Sketch on XY plane
sketch12 = body.newObject("Sketcher::SketchObject", "Sketch011")
sketch12.AttachmentSupport = (doc.getObject("XY_Plane"), [""])
sketch12.MapMode = "FlatFace"
sketch12.addGeometry([
    Part.Circle(V(11.7, 8.2, 0), V(0, 0, 1), 1.4),
    Part.Circle(V(-3.3, 8.2, 0), V(0, 0, 1), 1.4),
], False)
sketch12.addConstraint([
    Sketcher.Constraint("Equal", 0, 1),
    Sketcher.Constraint("Horizontal", 0, 3, 1, 3),
    Sketcher.Constraint("Diameter", 0, Q("2.8 mm")),
    Sketcher.Constraint("DistanceX", 1, 3, 0, 3, Q("15 mm")),
    Sketcher.Constraint("DistanceX", -1, 1, 0, 3, Q("11.7 mm")),
    Sketcher.Constraint("DistanceY", -1, 1, 0, 3, Q("8.24 mm")),
])
sketch12.setExpression("Constraints[2]", "Params.sketch12_diameter")
pocket7 = body.newObject("PartDesign::Pocket", "Pocket006")
pocket7.Profile = sketch12
pocket7.setExpression("Length", "Params.pocket7_length")
pocket7.Reversed = True

# Sketch on XZ plane
sketch13 = body.newObject("Sketcher::SketchObject", "Sketch012")
sketch13.AttachmentSupport = (doc.getObject("XZ_Plane"), [""])
sketch13.MapMode = "FlatFace"
sketch13.AttachmentOffset = App.Placement(V(0, 0, -11.4), App.Rotation())
sketch13.addGeometry([
    Part.LineSegment(V(5.2, -3, 0), V(5.2, 2.5, 0)),  # 0
    Part.LineSegment(V(5.2, 2.5, 0), V(5.7, 2.5, 0)),  # 1
    Part.LineSegment(V(5.7, 2.5, 0), V(5.7, -3, 0)),  # 2
    Part.LineSegment(V(5.7, -3, 0), V(5.2, -3, 0)),  # 3
    Part.LineSegment(V(7.8, -3, 0), V(7.8, 2.5, 0)),  # 4
    Part.LineSegment(V(7.8, 2.5, 0), V(8.3, 2.5, 0)),  # 5
    Part.LineSegment(V(8.3, 2.5, 0), V(8.3, -3, 0)),  # 6
    Part.LineSegment(V(8.3, -3, 0), V(7.8, -3, 0)),  # 7
    Part.LineSegment(V(2.7, -3, 0), V(2.7, 2.5, 0)),  # 8
    Part.LineSegment(V(2.7, 2.5, 0), V(3.2, 2.5, 0)),  # 9
    Part.LineSegment(V(3.2, 2.5, 0), V(3.2, -3, 0)),  # 10
    Part.LineSegment(V(3.2, -3, 0), V(2.7, -3, 0)),  # 11
    Part.LineSegment(V(0.1, -3, 0), V(0.1, 2.5, 0)),  # 12
    Part.LineSegment(V(0.1, 2.5, 0), V(0.6, 2.5, 0)),  # 13
    Part.LineSegment(V(0.6, 2.5, 0), V(0.6, -3, 0)),  # 14
    Part.LineSegment(V(0.6, -3, 0), V(0.1, -3, 0)),  # 15
], False)
sketch13.addConstraint([
    Sketcher.Constraint("Coincident", 0, 2, 1, 1),
    Sketcher.Constraint("Coincident", 1, 2, 2, 1),
    Sketcher.Constraint("Coincident", 2, 2, 3, 1),
    Sketcher.Constraint("Coincident", 3, 2, 0, 1),
    Sketcher.Constraint("Coincident", 4, 2, 5, 1),
    Sketcher.Constraint("Coincident", 5, 2, 6, 1),
    Sketcher.Constraint("Coincident", 6, 2, 7, 1),
    Sketcher.Constraint("Coincident", 7, 2, 4, 1),
    Sketcher.Constraint("Coincident", 8, 2, 9, 1),
    Sketcher.Constraint("Coincident", 9, 2, 10, 1),
    Sketcher.Constraint("Coincident", 10, 2, 11, 1),
    Sketcher.Constraint("Coincident", 11, 2, 8, 1),
    Sketcher.Constraint("Coincident", 12, 2, 13, 1),
    Sketcher.Constraint("Coincident", 13, 2, 14, 1),
    Sketcher.Constraint("Coincident", 14, 2, 15, 1),
    Sketcher.Constraint("Coincident", 15, 2, 12, 1),
    Sketcher.Constraint("Vertical", 0),
    Sketcher.Constraint("Horizontal", 1),
    Sketcher.Constraint("Vertical", 2),
    Sketcher.Constraint("Horizontal", 3),
    Sketcher.Constraint("Vertical", 4),
    Sketcher.Constraint("Horizontal", 5),
    Sketcher.Constraint("Vertical", 6),
    Sketcher.Constraint("Horizontal", 7),
    Sketcher.Constraint("Vertical", 8),
    Sketcher.Constraint("Horizontal", 9),
    Sketcher.Constraint("Vertical", 10),
    Sketcher.Constraint("Horizontal", 11),
    Sketcher.Constraint("Vertical", 12),
    Sketcher.Constraint("Horizontal", 13),
    Sketcher.Constraint("Vertical", 14),
    Sketcher.Constraint("Horizontal", 15),
    Sketcher.Constraint("Horizontal", 1, 2, 4, 2),
    Sketcher.Constraint("Horizontal", 3, 2, 6, 2),
    Sketcher.Constraint("Horizontal", 5, 2, 8, 2),
    Sketcher.Constraint("Horizontal", 7, 2, 10, 2),
    Sketcher.Constraint("Horizontal", 9, 2, 12, 2),
    Sketcher.Constraint("Horizontal", 11, 2, 14, 2),
    Sketcher.Constraint("Equal", 3, 5),
    Sketcher.Constraint("Equal", 7, 9),
    Sketcher.Constraint("Equal", 11, 13),
    Sketcher.Constraint("DistanceX", 1, 1, 1, 2, Q("0.5 mm")),
    Sketcher.Constraint("DistanceY", 2, 2, -1, 1, Q("3 mm")),
    Sketcher.Constraint("DistanceY", 0, 1, 0, 2, Q("5.54 mm")),
    Sketcher.Constraint("DistanceX", -1, 1, 0, 2, Q("5.22 mm")),
    Sketcher.Constraint("DistanceX", -1, 1, 4, 2, Q("7.76 mm")),
    Sketcher.Constraint("DistanceX", -1, 1, 8, 2, Q("2.68 mm")),
    Sketcher.Constraint("DistanceX", -1, 1, 12, 2, Q("0.14 mm")),
])
sketch13.setExpression("Constraints[41]", "Params.sketch13_width")
sketch13.setExpression("Constraints[43]", "Params.sketch13_height")
pad6 = body.newObject("PartDesign::Pad", "Pad005")
pad6.Profile = sketch13
pad6.setExpression("Length", "Params.pad6_length")
pad6.Reversed = True
doc.recompute()

fillet2 = body.newObject("PartDesign::Fillet", "Fillet001")
fillet2.Base = (pad6, edges_at(pad6, [
    (5.47, 12.85, 2.54),
    (2.93, 12.85, 2.54),
    (0.39, 12.85, 2.54),
    (8.01, 12.85, 2.54),
]))
fillet2.setExpression("Radius", "Params.fillet2_radius")

# Sketch on YZ plane
sketch14 = body.newObject("Sketcher::SketchObject", "Sketch013")
sketch14.AttachmentSupport = (doc.getObject("YZ_Plane"), [""])
sketch14.MapMode = "FlatFace"
sketch14.AttachmentOffset = App.Placement(V(0, 0, 8.26), App.Rotation())
sketch14.addGeometry([
    Part.LineSegment(V(12.6, 1.54, 0), V(12.6, -3, 0)),  # 0
    Part.LineSegment(V(12.6, -3, 0), V(11.4, -3, 0)),  # 1
    Part.LineSegment(V(11.4, -3, 0), V(11.4, 2.29, 0)),  # 2
    Part.LineSegment(V(11.4, 2.29, 0), V(11.85, 2.29, 0)),  # 3
    Part.ArcOfCircle(Part.Circle(V(11.85, 1.54, 0), V(0, 0, 1), 0.75), math.radians(0), math.radians(90)),  # 4
], False)
sketch14.addConstraint([
    Sketcher.Constraint("Coincident", 0, 2, 1, 1),
    Sketcher.Constraint("Coincident", 1, 2, 2, 1),
    Sketcher.Constraint("Coincident", 2, 2, 3, 1),
    Sketcher.Constraint("Tangent", 3, 2, 4, 2),
    Sketcher.Constraint("Tangent", 4, 1, 0, 1),
    Sketcher.Constraint("Vertical", 0),
    Sketcher.Constraint("Horizontal", 1),
    Sketcher.Constraint("Vertical", 2),
    Sketcher.Constraint("Horizontal", 3),
    Sketcher.Constraint("Radius", 4, Q("0.75 mm")),
    Sketcher.Constraint("DistanceX", 1, 2, 1, 1, Q("1.2 mm")),
    Sketcher.Constraint("DistanceY", 0, 2, -1, 1, Q("3 mm")),
    Sketcher.Constraint("DistanceY", 0, 2, 0, 1, Q("4.54 mm")),
    Sketcher.Constraint("DistanceX", -1, 1, 0, 2, Q("12.6 mm")),
])
sketch14.setExpression("Constraints[9]", "Params.sketch14_radius")
sketch14.setExpression("Constraints[10]", "Params.sketch14_width")
sketch14.setExpression("Constraints[12]", "Params.sketch14_height")
pocket8 = body.newObject("PartDesign::Pocket", "Pocket007")
pocket8.Profile = sketch14
pocket8.setExpression("Length", "Params.pocket8_length")

doc.recompute()
